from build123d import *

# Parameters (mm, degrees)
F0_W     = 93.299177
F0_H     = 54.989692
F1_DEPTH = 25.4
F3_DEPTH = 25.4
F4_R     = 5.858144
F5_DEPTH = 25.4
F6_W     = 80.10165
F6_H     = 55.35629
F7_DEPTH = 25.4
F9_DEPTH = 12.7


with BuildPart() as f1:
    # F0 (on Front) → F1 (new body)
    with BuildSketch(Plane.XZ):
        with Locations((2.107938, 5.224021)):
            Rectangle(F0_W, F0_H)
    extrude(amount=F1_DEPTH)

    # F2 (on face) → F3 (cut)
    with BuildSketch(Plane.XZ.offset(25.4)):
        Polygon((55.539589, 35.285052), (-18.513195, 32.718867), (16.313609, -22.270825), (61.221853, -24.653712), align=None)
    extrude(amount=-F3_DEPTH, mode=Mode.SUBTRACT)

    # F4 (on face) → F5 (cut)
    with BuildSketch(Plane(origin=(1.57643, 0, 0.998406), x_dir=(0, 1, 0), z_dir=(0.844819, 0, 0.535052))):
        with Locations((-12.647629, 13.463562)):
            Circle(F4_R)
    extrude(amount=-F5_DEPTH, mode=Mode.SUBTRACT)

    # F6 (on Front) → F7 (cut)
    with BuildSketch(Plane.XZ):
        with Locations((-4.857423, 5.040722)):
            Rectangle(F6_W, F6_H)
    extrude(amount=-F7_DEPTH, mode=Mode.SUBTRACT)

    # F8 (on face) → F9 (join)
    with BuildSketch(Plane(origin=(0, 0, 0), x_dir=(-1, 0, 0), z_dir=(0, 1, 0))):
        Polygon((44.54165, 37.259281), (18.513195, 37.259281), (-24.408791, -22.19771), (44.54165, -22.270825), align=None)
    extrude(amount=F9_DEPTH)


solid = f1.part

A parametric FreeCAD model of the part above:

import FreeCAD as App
import Part
import Sketcher

V = App.Vector
Q = App.Units.Quantity


def add_polygon(sketch, points):
    """Adds a closed chain of lines whose ends are joined by coincident constraints."""
    first, n = sketch.GeometryCount, len(points)
    for a, b in zip(points, points[1:] + points[:1]):
        sketch.addGeometry(Part.LineSegment(App.Vector(*a, 0), App.Vector(*b, 0)), False)
    for i in range(n):
        sketch.addConstraint(Sketcher.Constraint("Coincident", first + i, 2, first + (i + 1) % n, 1))

doc = App.newDocument("Part")
body = doc.addObject("PartDesign::Body", "Body")

sketch1 = body.newObject("Sketcher::SketchObject", "Sketch")
sketch1.AttachmentSupport = (doc.getObject("XZ_Plane"), [""])
sketch1.MapMode = "FlatFace"
add_polygon(sketch1, [(-44.541651, 32.718867), (-44.541651, -22.270825), (48.757526, -22.270825), (48.757526, 32.718867)])
sketch1.addConstraint([
    Sketcher.Constraint("Vertical", 0),
    Sketcher.Constraint("Horizontal", 1),
    Sketcher.Constraint("Vertical", 2),
    Sketcher.Constraint("Horizontal", 3),
    Sketcher.Constraint("DistanceX", 1, 1, 1, 2, 93.299177),
    Sketcher.Constraint("DistanceY", 0, 2, 0, 1, 54.989692),
    Sketcher.Constraint("DistanceX", 0, 2, -1, 1, 44.541651),
    Sketcher.Constraint("DistanceY", 0, 2, -1, 1, 22.270825),
])
pad1 = body.newObject("PartDesign::Pad", "Pad")
pad1.Profile = sketch1
pad1.Length = Q("1 in")

sketch2 = body.newObject("Sketcher::SketchObject", "Sketch001")
sketch2.AttachmentSupport = (doc.getObject("XZ_Plane"), [""])
sketch2.MapMode = "FlatFace"
sketch2.AttachmentOffset = App.Placement(V(0, 0, 1 * 25.4), App.Rotation())
add_polygon(sketch2, [(55.539589, 35.285052), (-18.513195, 32.718867), (16.313609, -22.270825), (61.221853, -24.653712)])
sketch2.addConstraint([
    Sketcher.Constraint("Distance", 2, 44.971419),
    Sketcher.Constraint("DistanceX", -1, 1, 1, 2, 16.313609),
    Sketcher.Constraint("DistanceY", 2, 2, -1, 1, 24.653712),
    Sketcher.Constraint("DistanceX", -1, 1, 3, 2, 55.539589),
    Sketcher.Constraint("DistanceX", 0, 2, 2, 2, 79.735048),
    Sketcher.Constraint("DistanceY", 2, 2, 0, 2, 57.372579),
    Sketcher.Constraint("Distance", 0, 74.097234),
    Sketcher.Constraint("Distance", 1, 65.090495),
])
pocket1 = body.newObject("PartDesign::Pocket", "Pocket")
pocket1.Profile = sketch2
pocket1.Length = Q("1 in")

sketch3 = body.newObject("Sketcher::SketchObject", "Sketch002")
sketch3.Placement = App.Placement(V(1.57643, 0, 0.998406), App.Rotation(V(0, 1, 0), V(-0.535052057, 0, 0.844819091), V(0.844819091, 0, 0.535052057), "ZXY"))
sketch3.addGeometry(Part.Circle(V(-12.647629, 13.463562, 0), V(0, 0, 1), 5.858144), False)
sketch3.addConstraint([
    Sketcher.Constraint("Diameter", 0, 11.716288),
    Sketcher.Constraint("DistanceX", 0, 3, -1, 1, 12.647629),
    Sketcher.Constraint("DistanceY", -1, 1, 0, 3, 13.463562),
])
pocket2 = body.newObject("PartDesign::Pocket", "Pocket001")
pocket2.Profile = sketch3
pocket2.Length = Q("1 in")

sketch4 = body.newObject("Sketcher::SketchObject", "Sketch003")
sketch4.AttachmentSupport = (doc.getObject("XZ_Plane"), [""])
sketch4.MapMode = "FlatFace"
add_polygon(sketch4, [(-44.908248, 32.718867), (-44.908248, -22.637423), (35.193402, -22.637423), (35.193402, 32.718867)])
sketch4.addConstraint([
    Sketcher.Constraint("Vertical", 0),
    Sketcher.Constraint("Horizontal", 1),
    Sketcher.Constraint("Vertical", 2),
    Sketcher.Constraint("Horizontal", 3),
    Sketcher.Constraint("DistanceX", 1, 1, 1, 2, 80.10165),
    Sketcher.Constraint("DistanceY", 0, 2, 0, 1, 55.35629),
    Sketcher.Constraint("DistanceX", 0, 2, -1, 1, 44.908248),
    Sketcher.Constraint("DistanceY", 0, 2, -1, 1, 22.637423),
])
pocket3 = body.newObject("PartDesign::Pocket", "Pocket002")
pocket3.Profile = sketch4
pocket3.Length = Q("1 in")

sketch5 = body.newObject("Sketcher::SketchObject", "Sketch004")
sketch5.AttachmentSupport = (doc.getObject("XZ_Plane"), [""])
sketch5.MapMode = "FlatFace"
add_polygon(sketch5, [(-44.54165, 37.259281), (-18.513195, 37.259281), (24.408791, -22.19771), (-44.54165, -22.270825)])
sketch5.addConstraint([
    Sketcher.Constraint("Horizontal", 0),
    Sketcher.Constraint("Vertical", 3),
    Sketcher.Constraint("Distance", 2, 68.95048),
    Sketcher.Constraint("DistanceX", 0, 1, 0, 2, 26.028455),
    Sketcher.Constraint("DistanceY", 3, 1, 3, 2, 59.530106),
    Sketcher.Constraint("DistanceY", -1, 1, 0, 2, 37.259281),
    Sketcher.Constraint("DistanceX", -1, 1, 1, 2, 24.408791),
    Sketcher.Constraint("DistanceY", 1, 2, -1, 1, 22.19771),
])
pad2 = body.newObject("PartDesign::Pad", "Pad001")
pad2.Profile = sketch5
pad2.Length = Q("0.5 in")
pad2.Reversed = True

doc.recompute()
